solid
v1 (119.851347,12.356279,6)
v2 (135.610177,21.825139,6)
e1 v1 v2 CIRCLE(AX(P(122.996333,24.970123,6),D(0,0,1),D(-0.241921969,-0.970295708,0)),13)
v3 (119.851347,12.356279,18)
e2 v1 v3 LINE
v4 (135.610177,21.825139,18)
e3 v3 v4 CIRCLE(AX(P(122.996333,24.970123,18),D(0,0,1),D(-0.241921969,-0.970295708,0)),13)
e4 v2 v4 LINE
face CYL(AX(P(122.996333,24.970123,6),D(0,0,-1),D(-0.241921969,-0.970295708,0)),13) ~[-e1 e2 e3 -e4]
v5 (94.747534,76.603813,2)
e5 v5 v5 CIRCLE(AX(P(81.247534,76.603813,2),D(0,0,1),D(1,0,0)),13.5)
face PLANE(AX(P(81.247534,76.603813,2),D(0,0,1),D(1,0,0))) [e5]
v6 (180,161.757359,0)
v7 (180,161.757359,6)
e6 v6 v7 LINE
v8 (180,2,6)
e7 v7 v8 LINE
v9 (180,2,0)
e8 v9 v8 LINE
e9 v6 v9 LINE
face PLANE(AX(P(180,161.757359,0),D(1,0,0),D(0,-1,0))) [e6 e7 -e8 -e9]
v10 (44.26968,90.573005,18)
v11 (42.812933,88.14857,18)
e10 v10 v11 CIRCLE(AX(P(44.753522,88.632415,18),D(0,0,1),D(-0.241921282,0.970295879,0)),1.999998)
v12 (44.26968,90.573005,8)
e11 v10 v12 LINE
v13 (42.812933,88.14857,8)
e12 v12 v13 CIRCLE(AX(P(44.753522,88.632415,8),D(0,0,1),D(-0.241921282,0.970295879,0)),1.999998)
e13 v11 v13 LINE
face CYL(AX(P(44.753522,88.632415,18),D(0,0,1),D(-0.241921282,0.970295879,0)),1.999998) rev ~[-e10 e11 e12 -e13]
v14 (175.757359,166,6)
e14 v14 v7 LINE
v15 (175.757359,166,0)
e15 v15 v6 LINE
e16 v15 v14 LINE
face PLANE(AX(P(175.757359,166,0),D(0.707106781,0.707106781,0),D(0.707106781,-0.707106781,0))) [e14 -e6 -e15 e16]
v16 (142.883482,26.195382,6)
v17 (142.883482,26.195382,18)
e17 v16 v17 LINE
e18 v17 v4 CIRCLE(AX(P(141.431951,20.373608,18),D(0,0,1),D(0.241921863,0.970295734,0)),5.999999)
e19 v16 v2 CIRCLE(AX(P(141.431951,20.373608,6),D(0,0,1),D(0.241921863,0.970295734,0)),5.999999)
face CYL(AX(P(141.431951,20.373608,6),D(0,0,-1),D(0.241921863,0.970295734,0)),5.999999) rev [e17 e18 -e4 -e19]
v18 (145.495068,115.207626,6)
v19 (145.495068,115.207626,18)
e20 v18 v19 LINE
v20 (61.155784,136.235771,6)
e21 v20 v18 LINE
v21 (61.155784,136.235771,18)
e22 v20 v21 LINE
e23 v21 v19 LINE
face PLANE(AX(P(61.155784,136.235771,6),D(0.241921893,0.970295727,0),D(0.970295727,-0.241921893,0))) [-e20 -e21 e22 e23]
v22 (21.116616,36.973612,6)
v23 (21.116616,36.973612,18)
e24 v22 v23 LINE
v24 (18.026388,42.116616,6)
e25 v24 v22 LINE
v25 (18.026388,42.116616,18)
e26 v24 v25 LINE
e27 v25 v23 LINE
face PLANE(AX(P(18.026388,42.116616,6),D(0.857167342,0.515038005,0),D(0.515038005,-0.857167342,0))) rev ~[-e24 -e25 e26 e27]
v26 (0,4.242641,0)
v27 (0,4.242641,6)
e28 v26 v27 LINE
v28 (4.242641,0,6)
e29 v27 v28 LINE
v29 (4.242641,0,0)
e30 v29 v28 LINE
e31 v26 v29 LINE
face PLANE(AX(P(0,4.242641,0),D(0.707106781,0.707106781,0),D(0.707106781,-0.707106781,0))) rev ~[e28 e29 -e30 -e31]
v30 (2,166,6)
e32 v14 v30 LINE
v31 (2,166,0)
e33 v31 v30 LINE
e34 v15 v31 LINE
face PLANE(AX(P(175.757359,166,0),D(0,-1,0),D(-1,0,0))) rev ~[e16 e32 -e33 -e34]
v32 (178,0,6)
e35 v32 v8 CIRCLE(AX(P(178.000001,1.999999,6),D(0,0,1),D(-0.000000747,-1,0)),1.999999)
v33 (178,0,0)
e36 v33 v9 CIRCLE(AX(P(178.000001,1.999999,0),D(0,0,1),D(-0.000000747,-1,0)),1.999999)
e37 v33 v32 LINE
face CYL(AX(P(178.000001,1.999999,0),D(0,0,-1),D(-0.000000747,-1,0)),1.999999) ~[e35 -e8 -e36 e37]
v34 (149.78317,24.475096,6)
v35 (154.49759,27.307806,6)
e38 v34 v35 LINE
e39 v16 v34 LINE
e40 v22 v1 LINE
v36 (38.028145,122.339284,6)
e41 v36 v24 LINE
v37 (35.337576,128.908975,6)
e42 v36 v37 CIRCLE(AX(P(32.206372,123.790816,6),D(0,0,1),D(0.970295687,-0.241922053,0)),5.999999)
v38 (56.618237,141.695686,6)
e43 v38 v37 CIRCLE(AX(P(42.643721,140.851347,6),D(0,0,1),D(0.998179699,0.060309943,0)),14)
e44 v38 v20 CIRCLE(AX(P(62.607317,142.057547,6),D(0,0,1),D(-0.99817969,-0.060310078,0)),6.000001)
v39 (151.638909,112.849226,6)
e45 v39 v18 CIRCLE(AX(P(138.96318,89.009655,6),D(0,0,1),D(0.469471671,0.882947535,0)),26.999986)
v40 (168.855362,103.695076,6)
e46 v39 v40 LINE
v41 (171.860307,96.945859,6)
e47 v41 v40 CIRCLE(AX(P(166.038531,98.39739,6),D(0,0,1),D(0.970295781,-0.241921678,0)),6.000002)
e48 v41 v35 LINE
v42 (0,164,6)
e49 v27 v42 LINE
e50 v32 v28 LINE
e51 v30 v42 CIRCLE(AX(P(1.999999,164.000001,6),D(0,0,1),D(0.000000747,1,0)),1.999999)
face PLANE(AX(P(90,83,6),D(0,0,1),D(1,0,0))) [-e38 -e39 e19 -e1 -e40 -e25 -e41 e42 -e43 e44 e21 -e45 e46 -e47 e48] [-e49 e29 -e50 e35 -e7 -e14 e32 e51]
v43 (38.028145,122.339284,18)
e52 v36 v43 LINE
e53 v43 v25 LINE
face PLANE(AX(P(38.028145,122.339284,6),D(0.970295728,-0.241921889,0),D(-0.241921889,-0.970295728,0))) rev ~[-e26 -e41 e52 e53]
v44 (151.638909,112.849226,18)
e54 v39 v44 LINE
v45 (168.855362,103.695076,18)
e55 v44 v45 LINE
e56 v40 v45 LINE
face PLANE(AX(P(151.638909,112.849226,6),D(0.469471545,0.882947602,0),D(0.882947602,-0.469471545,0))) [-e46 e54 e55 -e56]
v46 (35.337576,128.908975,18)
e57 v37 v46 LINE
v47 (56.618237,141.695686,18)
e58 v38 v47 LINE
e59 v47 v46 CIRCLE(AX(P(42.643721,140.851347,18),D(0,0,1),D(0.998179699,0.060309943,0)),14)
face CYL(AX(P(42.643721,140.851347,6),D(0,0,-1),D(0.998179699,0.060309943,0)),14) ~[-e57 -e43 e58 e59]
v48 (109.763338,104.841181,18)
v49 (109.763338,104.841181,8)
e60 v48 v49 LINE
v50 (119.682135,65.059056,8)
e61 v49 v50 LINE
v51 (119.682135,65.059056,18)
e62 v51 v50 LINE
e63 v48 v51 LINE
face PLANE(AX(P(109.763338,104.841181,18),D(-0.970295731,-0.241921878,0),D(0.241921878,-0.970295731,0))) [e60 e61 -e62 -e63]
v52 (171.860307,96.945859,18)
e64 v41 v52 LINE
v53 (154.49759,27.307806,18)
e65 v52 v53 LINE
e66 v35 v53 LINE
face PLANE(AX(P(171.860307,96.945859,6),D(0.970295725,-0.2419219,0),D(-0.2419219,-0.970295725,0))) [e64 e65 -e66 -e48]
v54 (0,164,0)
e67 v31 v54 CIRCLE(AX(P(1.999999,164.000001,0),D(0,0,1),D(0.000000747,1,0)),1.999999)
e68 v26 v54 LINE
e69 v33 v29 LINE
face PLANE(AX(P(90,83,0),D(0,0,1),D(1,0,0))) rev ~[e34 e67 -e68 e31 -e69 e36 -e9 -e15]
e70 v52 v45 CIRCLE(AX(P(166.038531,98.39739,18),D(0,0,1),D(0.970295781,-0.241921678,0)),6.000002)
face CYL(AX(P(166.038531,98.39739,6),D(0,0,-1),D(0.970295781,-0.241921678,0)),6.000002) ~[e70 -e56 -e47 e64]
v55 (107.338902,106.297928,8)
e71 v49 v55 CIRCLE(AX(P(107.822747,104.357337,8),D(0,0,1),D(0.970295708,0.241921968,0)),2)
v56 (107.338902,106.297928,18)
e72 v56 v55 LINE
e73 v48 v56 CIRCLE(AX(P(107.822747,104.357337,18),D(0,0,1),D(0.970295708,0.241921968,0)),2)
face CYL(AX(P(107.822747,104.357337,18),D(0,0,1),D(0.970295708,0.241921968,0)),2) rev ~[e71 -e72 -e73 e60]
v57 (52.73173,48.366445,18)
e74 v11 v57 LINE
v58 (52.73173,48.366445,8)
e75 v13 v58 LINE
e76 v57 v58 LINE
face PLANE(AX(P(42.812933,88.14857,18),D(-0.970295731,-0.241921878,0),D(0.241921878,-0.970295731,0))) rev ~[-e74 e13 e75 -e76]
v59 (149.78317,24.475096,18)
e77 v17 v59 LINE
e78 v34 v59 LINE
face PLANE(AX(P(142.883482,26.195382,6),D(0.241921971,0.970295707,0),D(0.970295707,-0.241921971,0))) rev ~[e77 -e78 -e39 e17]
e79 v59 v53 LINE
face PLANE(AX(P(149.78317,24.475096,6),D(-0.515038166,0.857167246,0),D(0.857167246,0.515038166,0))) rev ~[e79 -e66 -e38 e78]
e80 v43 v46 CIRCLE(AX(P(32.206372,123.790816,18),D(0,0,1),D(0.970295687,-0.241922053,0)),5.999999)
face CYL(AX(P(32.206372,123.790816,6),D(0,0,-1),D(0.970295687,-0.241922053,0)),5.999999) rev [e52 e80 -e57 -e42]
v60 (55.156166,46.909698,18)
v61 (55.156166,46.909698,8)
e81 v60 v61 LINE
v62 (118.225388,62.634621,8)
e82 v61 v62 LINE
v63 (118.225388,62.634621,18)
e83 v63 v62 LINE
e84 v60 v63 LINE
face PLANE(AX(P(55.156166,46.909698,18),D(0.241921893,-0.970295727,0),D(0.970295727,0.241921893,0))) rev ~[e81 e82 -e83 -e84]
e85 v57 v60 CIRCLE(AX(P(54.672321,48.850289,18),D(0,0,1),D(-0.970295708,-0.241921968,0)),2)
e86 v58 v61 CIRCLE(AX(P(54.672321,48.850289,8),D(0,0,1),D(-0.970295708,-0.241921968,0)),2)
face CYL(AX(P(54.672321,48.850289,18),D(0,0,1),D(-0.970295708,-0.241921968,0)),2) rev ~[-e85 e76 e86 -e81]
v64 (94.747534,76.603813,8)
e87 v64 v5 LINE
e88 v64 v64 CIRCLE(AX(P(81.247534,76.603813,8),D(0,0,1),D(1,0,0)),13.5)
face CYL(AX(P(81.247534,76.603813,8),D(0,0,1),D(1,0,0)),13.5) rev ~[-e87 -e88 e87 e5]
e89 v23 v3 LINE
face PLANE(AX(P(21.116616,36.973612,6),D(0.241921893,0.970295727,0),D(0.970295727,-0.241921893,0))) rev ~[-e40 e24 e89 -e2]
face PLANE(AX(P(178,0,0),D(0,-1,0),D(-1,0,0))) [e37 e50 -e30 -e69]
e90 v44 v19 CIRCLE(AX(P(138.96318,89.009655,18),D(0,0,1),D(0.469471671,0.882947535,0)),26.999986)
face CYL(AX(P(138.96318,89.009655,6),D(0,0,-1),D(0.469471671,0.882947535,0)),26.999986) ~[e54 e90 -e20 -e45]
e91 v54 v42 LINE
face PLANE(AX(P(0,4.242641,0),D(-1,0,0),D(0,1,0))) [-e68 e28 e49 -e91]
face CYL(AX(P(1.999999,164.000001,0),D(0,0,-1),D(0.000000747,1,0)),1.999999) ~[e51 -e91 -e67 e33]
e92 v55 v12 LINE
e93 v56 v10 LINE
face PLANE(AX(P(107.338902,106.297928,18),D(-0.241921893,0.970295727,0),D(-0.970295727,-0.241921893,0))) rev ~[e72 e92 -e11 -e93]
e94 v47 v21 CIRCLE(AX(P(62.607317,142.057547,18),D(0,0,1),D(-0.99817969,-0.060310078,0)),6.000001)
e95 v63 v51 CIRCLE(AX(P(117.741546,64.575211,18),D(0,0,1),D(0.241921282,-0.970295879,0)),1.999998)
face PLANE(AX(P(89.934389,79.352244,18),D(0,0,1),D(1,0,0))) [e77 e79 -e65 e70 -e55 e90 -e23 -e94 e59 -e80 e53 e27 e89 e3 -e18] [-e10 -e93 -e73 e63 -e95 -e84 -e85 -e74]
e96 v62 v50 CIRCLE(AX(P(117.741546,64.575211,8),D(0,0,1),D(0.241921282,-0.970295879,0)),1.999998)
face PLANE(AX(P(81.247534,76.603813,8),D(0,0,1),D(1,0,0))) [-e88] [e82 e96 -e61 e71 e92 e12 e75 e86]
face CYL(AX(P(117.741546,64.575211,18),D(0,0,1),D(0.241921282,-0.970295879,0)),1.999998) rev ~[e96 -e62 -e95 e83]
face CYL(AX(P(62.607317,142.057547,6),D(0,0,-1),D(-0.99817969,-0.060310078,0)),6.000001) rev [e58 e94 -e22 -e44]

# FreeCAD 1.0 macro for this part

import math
import FreeCAD as App
import Part
import Sketcher
from FreeCAD import Vector
Q = App.Units.Quantity

doc = App.newDocument("Part")
params = doc.addObject("Spreadsheet::Sheet", "Params")
for row, (alias, value) in enumerate([
    ("sketch1_radius", "1.999999 mm"),
    ("sketch1_length", "6 mm"),
    ("pad1_length", "6 mm"),
    ("sketch2_radius", "14 mm"),
    ("sketch2_radius2", "5.999999 mm"),
    ("sketch2_radius3", "13 mm"),
    ("sketch2_radius4", "6.000002 mm"),
    ("sketch2_length", "6 mm"),
    ("pad2_length", "12 mm"),
    ("sketch3_radius", "1.999998 mm"),
    ("sketch3_length", "41 mm"),
    ("sketch3_length2", "65 mm"),
    ("pocket1_length", "10 mm"),
    ("sketch4_diameter", "27 mm"),
    ("pocket2_length", "6 mm"),
], start=1):
    params.set(f"A{row}", alias)
    params.set(f"B{row}", "=" + value)
    params.setAlias(f"B{row}", alias)

body = doc.addObject("PartDesign::Body", "Body")

# Sketch on XY plane
sketch1 = body.newObject("Sketcher::SketchObject", "Sketch")
sketch1.AttachmentSupport = (doc.getObject("XY_Plane"), [""])
sketch1.MapMode = "FlatFace"
sketch1.addGeometry(Part.ArcOfCircle(Part.Circle(Vector(2, 164, 0), Vector(0, 0, 1), 2), math.radians(90), math.radians(180)), False)
sketch1.addGeometry(Part.LineSegment(Vector(0, 164, 0), Vector(0, 4.2, 0)), False)
sketch1.addGeometry(Part.LineSegment(Vector(0, 4.2, 0), Vector(4.2, 0, 0)), False)
sketch1.addGeometry(Part.LineSegment(Vector(4.2, 0, 0), Vector(178, 0, 0)), False)
sketch1.addGeometry(Part.ArcOfCircle(Part.Circle(Vector(178, 2, 0), Vector(0, 0, 1), 2), math.radians(-90), math.radians(0)), False)
sketch1.addGeometry(Part.LineSegment(Vector(180, 2, 0), Vector(180, 161.8, 0)), False)
sketch1.addGeometry(Part.LineSegment(Vector(180, 161.8, 0), Vector(175.8, 166, 0)), False)
sketch1.addGeometry(Part.LineSegment(Vector(175.8, 166, 0), Vector(2, 166, 0)), False)
sketch1.addConstraint(Sketcher.Constraint("Tangent", 0, 2, 1, 1))
sketch1.addConstraint(Sketcher.Constraint("Coincident", 1, 2, 2, 1))
sketch1.addConstraint(Sketcher.Constraint("Coincident", 2, 2, 3, 1))
sketch1.addConstraint(Sketcher.Constraint("Tangent", 3, 2, 4, 1))
sketch1.addConstraint(Sketcher.Constraint("Tangent", 4, 2, 5, 1))
sketch1.addConstraint(Sketcher.Constraint("Coincident", 5, 2, 6, 1))
sketch1.addConstraint(Sketcher.Constraint("Coincident", 6, 2, 7, 1))
sketch1.addConstraint(Sketcher.Constraint("Tangent", 7, 2, 0, 1))
sketch1.addConstraint(Sketcher.Constraint("Vertical", 1))
sketch1.addConstraint(Sketcher.Constraint("Horizontal", 3))
sketch1.addConstraint(Sketcher.Constraint("Vertical", 5))
sketch1.addConstraint(Sketcher.Constraint("Horizontal", 7))
sketch1.addConstraint(Sketcher.Constraint("Equal", 0, 4))
sketch1.addConstraint(Sketcher.Constraint("PointOnObject", 0, 2, -2))
sketch1.addConstraint(Sketcher.Constraint("PointOnObject", 2, 2, -1))
sketch1.addConstraint(Sketcher.Constraint("Parallel", 2, 6))
sketch1.addConstraint(Sketcher.Constraint("Equal", 3, 7))
sketch1.addConstraint(Sketcher.Constraint("Radius", 0, 1.999999))
sketch1.addConstraint(Sketcher.Constraint("Angle", 2, Q("-45 deg")))
sketch1.addConstraint(Sketcher.Constraint("Distance", 2, 6.0))
sketch1.addConstraint(Sketcher.Constraint("DistanceY", -1, 1, 0, 3, 164.000001))
sketch1.addConstraint(Sketcher.Constraint("DistanceX", -1, 1, 4, 3, 178.000001))
sketch1.setExpression("Constraints[17]", "Params.sketch1_radius")
sketch1.setExpression("Constraints[19]", "Params.sketch1_length")
pad1 = body.newObject("PartDesign::Pad", "Pad")
pad1.Profile = sketch1
pad1.setExpression("Length", "Params.pad1_length")

# Sketch on XY plane
sketch2 = body.newObject("Sketcher::SketchObject", "Sketch001")
sketch2.AttachmentSupport = (doc.getObject("XY_Plane"), [""])
sketch2.MapMode = "FlatFace"
sketch2.AttachmentOffset = App.Placement(Vector(0, 0, 6), App.Rotation())
sketch2.addGeometry(Part.ArcOfCircle(Part.Circle(Vector(43, 141, 0), Vector(0, 0, 1), 14), math.radians(3), math.radians(239)), False)
sketch2.addGeometry(Part.ArcOfCircle(Part.Circle(Vector(32, 124, 0), Vector(0, 0, 1), 6), math.radians(-14), math.radians(59)), False)
sketch2.addGeometry(Part.LineSegment(Vector(38, 122, 0), Vector(18, 42, 0)), False)
sketch2.addGeometry(Part.LineSegment(Vector(18, 42, 0), Vector(21, 37, 0)), False)
sketch2.addGeometry(Part.LineSegment(Vector(21, 37, 0), Vector(120, 12, 0)), False)
sketch2.addGeometry(Part.ArcOfCircle(Part.Circle(Vector(123, 25, 0), Vector(0, 0, 1), 13), math.radians(-104), math.radians(-14)), False)
sketch2.addGeometry(Part.ArcOfCircle(Part.Circle(Vector(141, 20, 0), Vector(0, 0, 1), 6), math.radians(76), math.radians(166)), False)
sketch2.addGeometry(Part.LineSegment(Vector(143, 26, 0), Vector(150, 24, 0)), False)
sketch2.addGeometry(Part.LineSegment(Vector(150, 24, 0), Vector(154, 27, 0)), False)
sketch2.addGeometry(Part.LineSegment(Vector(154, 27, 0), Vector(172, 97, 0)), False)
sketch2.addGeometry(Part.ArcOfCircle(Part.Circle(Vector(166, 98, 0), Vector(0, 0, 1), 6), math.radians(-14), math.radians(62)), False)
sketch2.addGeometry(Part.LineSegment(Vector(169, 104, 0), Vector(152, 113, 0)), False)
sketch2.addGeometry(Part.ArcOfCircle(Part.Circle(Vector(139, 89, 0), Vector(0, 0, 1), 27), math.radians(62), math.radians(76)), False)
sketch2.addGeometry(Part.LineSegment(Vector(145, 115, 0), Vector(61, 136, 0)), False)
sketch2.addGeometry(Part.ArcOfCircle(Part.Circle(Vector(63, 142, 0), Vector(0, 0, 1), 6), math.radians(-177), math.radians(-104)), False)
sketch2.addConstraint(Sketcher.Constraint("Tangent", 0, 2, 1, 2))
sketch2.addConstraint(Sketcher.Constraint("Tangent", 1, 1, 2, 1))
sketch2.addConstraint(Sketcher.Constraint("Coincident", 2, 2, 3, 1))
sketch2.addConstraint(Sketcher.Constraint("Coincident", 3, 2, 4, 1))
sketch2.addConstraint(Sketcher.Constraint("Tangent", 4, 2, 5, 1))
sketch2.addConstraint(Sketcher.Constraint("Tangent", 5, 2, 6, 2))
sketch2.addConstraint(Sketcher.Constraint("Tangent", 6, 1, 7, 1))
sketch2.addConstraint(Sketcher.Constraint("Coincident", 7, 2, 8, 1))
sketch2.addConstraint(Sketcher.Constraint("Coincident", 8, 2, 9, 1))
sketch2.addConstraint(Sketcher.Constraint("Tangent", 9, 2, 10, 1))
sketch2.addConstraint(Sketcher.Constraint("Tangent", 10, 2, 11, 1))
sketch2.addConstraint(Sketcher.Constraint("Tangent", 11, 2, 12, 1))
sketch2.addConstraint(Sketcher.Constraint("Tangent", 12, 2, 13, 1))
sketch2.addConstraint(Sketcher.Constraint("Tangent", 13, 2, 14, 2))
sketch2.addConstraint(Sketcher.Constraint("Tangent", 14, 1, 0, 1))
sketch2.addConstraint(Sketcher.Constraint("Equal", 1, 6))
sketch2.addConstraint(Sketcher.Constraint("Equal", 10, 14))
sketch2.addConstraint(Sketcher.Constraint("Perpendicular", 2, 4))
sketch2.addConstraint(Sketcher.Constraint("Parallel", 4, 7))
sketch2.addConstraint(Sketcher.Constraint("Perpendicular", 3, 8))
sketch2.addConstraint(Sketcher.Constraint("Perpendicular", 7, 9))
sketch2.addConstraint(Sketcher.Constraint("Perpendicular", 9, 13))
sketch2.addConstraint(Sketcher.Constraint("Radius", 0, 14.0))
sketch2.addConstraint(Sketcher.Constraint("Radius", 1, 5.999999))
sketch2.addConstraint(Sketcher.Constraint("Radius", 5, 13.0))
sketch2.addConstraint(Sketcher.Constraint("Radius", 10, 6.000002))
sketch2.addConstraint(Sketcher.Constraint("Angle", 2, Q("-104 deg")))
sketch2.addConstraint(Sketcher.Constraint("Angle", 3, Q("-59.000005 deg")))
sketch2.addConstraint(Sketcher.Constraint("Angle", 11, Q("152.000001 deg")))
sketch2.addConstraint(Sketcher.Constraint("Distance", 3, 6.0))
sketch2.addConstraint(Sketcher.Constraint("Distance", 8, 5.5))
sketch2.addConstraint(Sketcher.Constraint("Radius", 12, 26.999986))
sketch2.addConstraint(Sketcher.Constraint("DistanceX", 5, 3, 10, 3, 43.042198))
sketch2.addConstraint(Sketcher.Constraint("DistanceY", 0, 3, 14, 3, 1.2062))
sketch2.addConstraint(Sketcher.Constraint("DistanceY", 2, 2, 1, 3, 81.6742))
sketch2.addConstraint(Sketcher.Constraint("DistanceX", 12, 3, 6, 1, 3.920302))
sketch2.addConstraint(Sketcher.Constraint("Distance", 4, 101.757359))
sketch2.addConstraint(Sketcher.Constraint("Distance", 11, 19.498839))
sketch2.addConstraint(Sketcher.Constraint("DistanceX", -1, 1, 0, 3, 42.643721))
sketch2.addConstraint(Sketcher.Constraint("DistanceX", -1, 1, 1, 3, 32.206372))
sketch2.addConstraint(Sketcher.Constraint("DistanceY", -1, 1, 6, 3, 20.373608))
sketch2.setExpression("Constraints[22]", "Params.sketch2_radius")
sketch2.setExpression("Constraints[23]", "Params.sketch2_radius2")
sketch2.setExpression("Constraints[24]", "Params.sketch2_radius3")
sketch2.setExpression("Constraints[25]", "Params.sketch2_radius4")
sketch2.setExpression("Constraints[29]", "Params.sketch2_length")
pad2 = body.newObject("PartDesign::Pad", "Pad001")
pad2.Profile = sketch2
pad2.setExpression("Length", "Params.pad2_length")

# Sketch on XY plane
sketch3 = body.newObject("Sketcher::SketchObject", "Sketch002")
sketch3.AttachmentSupport = (doc.getObject("XY_Plane"), [""])
sketch3.MapMode = "FlatFace"
sketch3.AttachmentOffset = App.Placement(Vector(0, 0, 18), App.Rotation())
sketch3.addGeometry(Part.ArcOfCircle(Part.Circle(Vector(44.8, 88.6, 0), Vector(0, 0, 1), 2), math.radians(104), math.radians(194)), False)
sketch3.addGeometry(Part.LineSegment(Vector(42.8, 88.1, 0), Vector(52.7, 48.4, 0)), False)
sketch3.addGeometry(Part.ArcOfCircle(Part.Circle(Vector(54.7, 48.9, 0), Vector(0, 0, 1), 2), math.radians(-166), math.radians(-76)), False)
sketch3.addGeometry(Part.LineSegment(Vector(55.2, 46.9, 0), Vector(118.2, 62.6, 0)), False)
sketch3.addGeometry(Part.ArcOfCircle(Part.Circle(Vector(117.7, 64.6, 0), Vector(0, 0, 1), 2), math.radians(-76), math.radians(14)), False)
sketch3.addGeometry(Part.LineSegment(Vector(119.7, 65.1, 0), Vector(109.8, 104.8, 0)), False)
sketch3.addGeometry(Part.ArcOfCircle(Part.Circle(Vector(107.8, 104.4, 0), Vector(0, 0, 1), 2), math.radians(14), math.radians(104)), False)
sketch3.addGeometry(Part.LineSegment(Vector(107.3, 106.3, 0), Vector(44.3, 90.6, 0)), False)
sketch3.addConstraint(Sketcher.Constraint("Tangent", 0, 2, 1, 1))
sketch3.addConstraint(Sketcher.Constraint("Tangent", 1, 2, 2, 1))
sketch3.addConstraint(Sketcher.Constraint("Tangent", 2, 2, 3, 1))
sketch3.addConstraint(Sketcher.Constraint("Tangent", 3, 2, 4, 1))
sketch3.addConstraint(Sketcher.Constraint("Tangent", 4, 2, 5, 1))
sketch3.addConstraint(Sketcher.Constraint("Tangent", 5, 2, 6, 1))
sketch3.addConstraint(Sketcher.Constraint("Tangent", 6, 2, 7, 1))
sketch3.addConstraint(Sketcher.Constraint("Tangent", 7, 2, 0, 1))
sketch3.addConstraint(Sketcher.Constraint("Equal", 0, 2))
sketch3.addConstraint(Sketcher.Constraint("Equal", 2, 4))
sketch3.addConstraint(Sketcher.Constraint("Equal", 4, 6))
sketch3.addConstraint(Sketcher.Constraint("Perpendicular", 1, 3))
sketch3.addConstraint(Sketcher.Constraint("Perpendicular", 3, 5))
sketch3.addConstraint(Sketcher.Constraint("Perpendicular", 5, 7))
sketch3.addConstraint(Sketcher.Constraint("Radius", 0, 1.999998))
sketch3.addConstraint(Sketcher.Constraint("Angle", 1, Q("-76.000001 deg")))
sketch3.addConstraint(Sketcher.Constraint("Distance", 1, 41.0))
sketch3.addConstraint(Sketcher.Constraint("Distance", 3, 65.0))
sketch3.addConstraint(Sketcher.Constraint("DistanceY", -1, 1, 2, 2, 46.909698))
sketch3.addConstraint(Sketcher.Constraint("DistanceX", -1, 1, 2, 3, 54.672321))
sketch3.setExpression("Constraints[14]", "Params.sketch3_radius")
sketch3.setExpression("Constraints[16]", "Params.sketch3_length")
sketch3.setExpression("Constraints[17]", "Params.sketch3_length2")
pocket1 = body.newObject("PartDesign::Pocket", "Pocket")
pocket1.Profile = sketch3
pocket1.setExpression("Length", "Params.pocket1_length")

# Sketch on XY plane
sketch4 = body.newObject("Sketcher::SketchObject", "Sketch003")
sketch4.AttachmentSupport = (doc.getObject("XY_Plane"), [""])
sketch4.MapMode = "FlatFace"
sketch4.AttachmentOffset = App.Placement(Vector(0, 0, 8), App.Rotation())
sketch4.addGeometry(Part.Circle(Vector(81, 77, 0), Vector(0, 0, 1), 14), False)
sketch4.addConstraint(Sketcher.Constraint("Diameter", 0, 27.0))
sketch4.addConstraint(Sketcher.Constraint("DistanceX", -1, 1, 0, 3, 81.247534))
sketch4.addConstraint(Sketcher.Constraint("DistanceY", -1, 1, 0, 3, 76.603813))
sketch4.setExpression("Constraints[0]", "Params.sketch4_diameter")
pocket2 = body.newObject("PartDesign::Pocket", "Pocket001")
pocket2.Profile = sketch4
pocket2.setExpression("Length", "Params.pocket2_length")

doc.recompute()
